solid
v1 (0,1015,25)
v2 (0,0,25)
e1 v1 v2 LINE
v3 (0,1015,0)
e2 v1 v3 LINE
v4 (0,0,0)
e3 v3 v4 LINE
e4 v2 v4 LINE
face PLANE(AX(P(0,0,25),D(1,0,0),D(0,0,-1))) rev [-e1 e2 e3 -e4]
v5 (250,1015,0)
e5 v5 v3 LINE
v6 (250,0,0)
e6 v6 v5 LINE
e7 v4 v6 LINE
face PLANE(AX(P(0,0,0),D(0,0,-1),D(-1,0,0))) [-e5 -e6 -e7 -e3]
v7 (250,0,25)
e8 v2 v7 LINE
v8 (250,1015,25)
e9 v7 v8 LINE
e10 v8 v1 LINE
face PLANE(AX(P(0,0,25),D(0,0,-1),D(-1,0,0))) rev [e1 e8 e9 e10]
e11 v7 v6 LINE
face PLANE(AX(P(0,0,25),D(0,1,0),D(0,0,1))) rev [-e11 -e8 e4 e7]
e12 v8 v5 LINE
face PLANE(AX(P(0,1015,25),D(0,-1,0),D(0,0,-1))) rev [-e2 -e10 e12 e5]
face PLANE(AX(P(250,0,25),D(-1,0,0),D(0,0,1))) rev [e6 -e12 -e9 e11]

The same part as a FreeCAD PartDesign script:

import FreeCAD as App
import Part
import Sketcher
Q = App.Units.Quantity


def add_polygon(sketch, points):
    """Adds a closed chain of lines whose ends are joined by coincident constraints."""
    first, n = sketch.GeometryCount, len(points)
    for a, b in zip(points, points[1:] + points[:1]):
        sketch.addGeometry(Part.LineSegment(App.Vector(*a, 0), App.Vector(*b, 0)), False)
    for i in range(n):
        sketch.addConstraint(Sketcher.Constraint("Coincident", first + i, 2, first + (i + 1) % n, 1))

doc = App.newDocument("Part")
body = doc.addObject("PartDesign::Body", "Body")

sketch1 = body.newObject("Sketcher::SketchObject", "Sketch")
sketch1.AttachmentSupport = (doc.getObject("XY_Plane"), [""])
sketch1.MapMode = "FlatFace"
add_polygon(sketch1, [(0, 1015), (0, 0), (250, 0), (250, 1015)])
sketch1.addConstraint([
    Sketcher.Constraint("Vertical", 0),
    Sketcher.Constraint("Horizontal", 1),
    Sketcher.Constraint("Vertical", 2),
    Sketcher.Constraint("Horizontal", 3),
    Sketcher.Constraint("Coincident", 0, 2, -1, 1),
    Sketcher.Constraint("DistanceX", 1, 1, 1, 2, Q("250 mm")),
    Sketcher.Constraint("DistanceY", 0, 2, 0, 1, Q("1015 mm")),
])
pad1 = body.newObject("PartDesign::Pad", "Pad")
pad1.Profile = sketch1
pad1.Length = 25

doc.recompute()
